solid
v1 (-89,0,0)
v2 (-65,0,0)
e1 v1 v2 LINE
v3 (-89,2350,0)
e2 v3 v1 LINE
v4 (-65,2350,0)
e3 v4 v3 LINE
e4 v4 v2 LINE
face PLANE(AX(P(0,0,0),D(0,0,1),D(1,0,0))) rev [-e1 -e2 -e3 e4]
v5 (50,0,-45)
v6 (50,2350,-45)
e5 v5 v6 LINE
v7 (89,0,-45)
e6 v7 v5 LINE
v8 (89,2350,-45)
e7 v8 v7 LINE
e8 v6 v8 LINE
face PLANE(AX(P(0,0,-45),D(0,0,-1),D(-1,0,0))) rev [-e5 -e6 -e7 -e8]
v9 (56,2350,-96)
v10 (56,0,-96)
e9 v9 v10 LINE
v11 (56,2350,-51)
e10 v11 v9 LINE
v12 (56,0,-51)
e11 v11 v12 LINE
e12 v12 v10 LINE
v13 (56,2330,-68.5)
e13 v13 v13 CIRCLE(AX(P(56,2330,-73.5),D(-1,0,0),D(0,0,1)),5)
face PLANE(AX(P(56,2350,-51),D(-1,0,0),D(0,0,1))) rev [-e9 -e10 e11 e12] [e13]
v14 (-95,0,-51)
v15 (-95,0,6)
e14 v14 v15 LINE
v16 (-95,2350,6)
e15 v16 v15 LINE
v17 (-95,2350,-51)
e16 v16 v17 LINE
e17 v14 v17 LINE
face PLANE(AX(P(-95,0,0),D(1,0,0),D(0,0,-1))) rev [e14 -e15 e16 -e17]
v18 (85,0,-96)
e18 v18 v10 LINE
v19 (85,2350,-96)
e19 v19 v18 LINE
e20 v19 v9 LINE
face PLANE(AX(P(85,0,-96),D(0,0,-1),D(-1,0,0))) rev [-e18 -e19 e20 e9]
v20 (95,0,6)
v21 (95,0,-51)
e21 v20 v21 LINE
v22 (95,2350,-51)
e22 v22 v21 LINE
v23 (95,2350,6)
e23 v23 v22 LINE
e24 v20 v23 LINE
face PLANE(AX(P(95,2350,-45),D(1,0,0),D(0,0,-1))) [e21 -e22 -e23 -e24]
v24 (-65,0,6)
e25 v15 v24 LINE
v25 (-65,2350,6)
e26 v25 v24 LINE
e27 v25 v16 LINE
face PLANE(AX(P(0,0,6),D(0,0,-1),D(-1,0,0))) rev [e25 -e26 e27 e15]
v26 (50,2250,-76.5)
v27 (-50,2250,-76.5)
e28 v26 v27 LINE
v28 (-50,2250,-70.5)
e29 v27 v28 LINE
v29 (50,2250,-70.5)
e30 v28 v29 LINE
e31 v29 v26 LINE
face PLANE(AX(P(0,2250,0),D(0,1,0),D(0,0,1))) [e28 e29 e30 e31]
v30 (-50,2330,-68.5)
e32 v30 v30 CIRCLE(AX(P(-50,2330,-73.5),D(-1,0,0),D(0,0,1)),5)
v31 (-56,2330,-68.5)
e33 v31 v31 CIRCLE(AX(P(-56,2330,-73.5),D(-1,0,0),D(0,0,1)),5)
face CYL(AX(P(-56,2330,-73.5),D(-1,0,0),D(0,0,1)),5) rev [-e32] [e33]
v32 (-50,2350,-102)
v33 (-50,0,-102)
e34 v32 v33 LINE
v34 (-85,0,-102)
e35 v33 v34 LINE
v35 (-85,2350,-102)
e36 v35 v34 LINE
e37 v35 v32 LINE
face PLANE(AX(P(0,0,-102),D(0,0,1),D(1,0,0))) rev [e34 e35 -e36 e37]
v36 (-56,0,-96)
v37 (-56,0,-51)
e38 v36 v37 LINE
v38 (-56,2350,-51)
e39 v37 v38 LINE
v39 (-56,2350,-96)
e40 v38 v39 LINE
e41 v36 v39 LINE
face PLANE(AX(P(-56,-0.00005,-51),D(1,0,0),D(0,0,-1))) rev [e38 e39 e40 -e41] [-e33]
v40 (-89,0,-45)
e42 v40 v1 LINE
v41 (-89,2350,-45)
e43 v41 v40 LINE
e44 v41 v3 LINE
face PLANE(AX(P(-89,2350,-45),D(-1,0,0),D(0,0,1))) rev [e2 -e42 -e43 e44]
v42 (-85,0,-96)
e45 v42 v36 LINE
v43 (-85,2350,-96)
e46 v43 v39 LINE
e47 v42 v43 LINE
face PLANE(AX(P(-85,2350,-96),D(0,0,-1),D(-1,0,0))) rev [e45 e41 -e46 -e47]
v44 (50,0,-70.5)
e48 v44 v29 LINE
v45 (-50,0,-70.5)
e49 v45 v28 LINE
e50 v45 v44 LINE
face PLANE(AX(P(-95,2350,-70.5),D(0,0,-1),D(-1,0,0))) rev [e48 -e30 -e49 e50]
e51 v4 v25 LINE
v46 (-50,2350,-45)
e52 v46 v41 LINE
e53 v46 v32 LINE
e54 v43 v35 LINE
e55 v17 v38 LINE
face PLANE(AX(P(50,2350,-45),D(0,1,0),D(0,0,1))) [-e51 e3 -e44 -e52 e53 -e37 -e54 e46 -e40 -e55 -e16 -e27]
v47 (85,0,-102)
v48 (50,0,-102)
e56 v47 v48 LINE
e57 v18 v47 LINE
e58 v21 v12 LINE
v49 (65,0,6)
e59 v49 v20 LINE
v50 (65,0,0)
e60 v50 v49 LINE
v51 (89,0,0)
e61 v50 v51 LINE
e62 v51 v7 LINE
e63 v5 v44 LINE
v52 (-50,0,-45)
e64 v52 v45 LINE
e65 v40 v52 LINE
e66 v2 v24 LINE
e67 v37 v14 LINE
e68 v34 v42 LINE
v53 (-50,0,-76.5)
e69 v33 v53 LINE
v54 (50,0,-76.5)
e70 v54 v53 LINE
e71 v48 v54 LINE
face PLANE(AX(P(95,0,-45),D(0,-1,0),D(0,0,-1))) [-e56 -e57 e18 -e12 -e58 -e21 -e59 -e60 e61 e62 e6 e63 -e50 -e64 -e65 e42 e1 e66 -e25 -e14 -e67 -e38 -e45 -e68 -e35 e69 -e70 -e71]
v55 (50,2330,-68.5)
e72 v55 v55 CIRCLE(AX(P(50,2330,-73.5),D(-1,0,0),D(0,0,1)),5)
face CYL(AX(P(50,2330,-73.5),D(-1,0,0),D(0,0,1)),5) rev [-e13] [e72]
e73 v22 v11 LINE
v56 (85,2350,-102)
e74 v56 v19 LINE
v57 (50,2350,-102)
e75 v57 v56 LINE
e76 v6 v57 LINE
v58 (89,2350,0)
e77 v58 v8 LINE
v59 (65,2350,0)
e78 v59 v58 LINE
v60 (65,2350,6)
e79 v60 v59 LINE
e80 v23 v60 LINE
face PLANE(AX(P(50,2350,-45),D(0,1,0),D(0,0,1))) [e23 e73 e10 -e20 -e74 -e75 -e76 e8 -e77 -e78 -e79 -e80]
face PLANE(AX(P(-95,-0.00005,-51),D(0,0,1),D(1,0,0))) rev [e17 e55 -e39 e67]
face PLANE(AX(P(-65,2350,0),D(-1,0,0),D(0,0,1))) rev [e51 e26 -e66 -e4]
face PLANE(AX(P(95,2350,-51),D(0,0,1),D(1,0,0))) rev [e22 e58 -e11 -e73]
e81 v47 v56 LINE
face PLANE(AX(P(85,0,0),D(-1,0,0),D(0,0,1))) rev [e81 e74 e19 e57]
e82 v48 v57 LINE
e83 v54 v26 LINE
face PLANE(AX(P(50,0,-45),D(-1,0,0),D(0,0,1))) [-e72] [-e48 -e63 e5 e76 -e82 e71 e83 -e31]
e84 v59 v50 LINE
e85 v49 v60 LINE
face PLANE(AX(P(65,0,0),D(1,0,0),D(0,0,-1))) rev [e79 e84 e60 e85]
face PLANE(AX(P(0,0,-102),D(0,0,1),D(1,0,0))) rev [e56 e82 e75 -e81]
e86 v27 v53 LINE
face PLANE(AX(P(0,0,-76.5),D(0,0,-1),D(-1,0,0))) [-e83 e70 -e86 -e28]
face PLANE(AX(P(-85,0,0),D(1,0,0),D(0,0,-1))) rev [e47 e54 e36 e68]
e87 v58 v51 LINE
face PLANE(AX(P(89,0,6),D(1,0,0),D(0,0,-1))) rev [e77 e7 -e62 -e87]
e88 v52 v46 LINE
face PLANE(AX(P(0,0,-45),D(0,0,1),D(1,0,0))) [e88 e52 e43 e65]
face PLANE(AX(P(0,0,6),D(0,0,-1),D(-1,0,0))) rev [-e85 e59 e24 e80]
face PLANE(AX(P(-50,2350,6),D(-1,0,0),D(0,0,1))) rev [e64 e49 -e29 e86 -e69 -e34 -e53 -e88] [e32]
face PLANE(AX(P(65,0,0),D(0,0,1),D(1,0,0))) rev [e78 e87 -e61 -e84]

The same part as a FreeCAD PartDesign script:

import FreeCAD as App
import Part
import Sketcher

V = App.Vector


def add_polygon(sketch, points):
    """Adds a closed chain of lines whose ends are joined by coincident constraints."""
    first, n = sketch.GeometryCount, len(points)
    for a, b in zip(points, points[1:] + points[:1]):
        sketch.addGeometry(Part.LineSegment(App.Vector(*a, 0), App.Vector(*b, 0)), False)
    for i in range(n):
        sketch.addConstraint(Sketcher.Constraint("Coincident", first + i, 2, first + (i + 1) % n, 1))

doc = App.newDocument("Part")
body = doc.addObject("PartDesign::Body", "Body")

sketch1 = doc.addObject("Sketcher::SketchObject", "Sketch")
body.addObject(sketch1)
sketch1.AttachmentSupport = (doc.XY_Plane, [""])
sketch1.MapMode = "FlatFace"
sketch1.AttachmentOffset = App.Placement(V(0, 0, -76.5), App.Rotation())
add_polygon(sketch1, [(95, 2350), (95, 0), (50, 0), (50, 2350)])
sketch1.addConstraint([
    Sketcher.Constraint("Vertical", 0),
    Sketcher.Constraint("Horizontal", 1),
    Sketcher.Constraint("Vertical", 2),
    Sketcher.Constraint("Horizontal", 3),
    Sketcher.Constraint("PointOnObject", 0, 2, -1),
    Sketcher.Constraint("DistanceX", 1, 2, 1, 1, 45.0),
    Sketcher.Constraint("DistanceY", 0, 2, 0, 1, 2350.0),
    Sketcher.Constraint("DistanceX", -1, 1, 0, 2, 95.0),
])
pad1 = doc.addObject("PartDesign::Pad", "Pad")
body.addObject(pad1)
pad1.Profile = sketch1
pad1.Length = 31.5

sketch2 = doc.addObject("Sketcher::SketchObject", "Sketch001")
body.addObject(sketch2)
sketch2.AttachmentSupport = (doc.YZ_Plane, [""])
sketch2.MapMode = "FlatFace"
sketch2.AttachmentOffset = App.Placement(V(0, 0, 50), App.Rotation())
add_polygon(sketch2, [(2350, -76), (0, -76), (0, -70), (2350, -70)])
sketch2.addConstraint([
    Sketcher.Constraint("Horizontal", 0),
    Sketcher.Constraint("Vertical", 1),
    Sketcher.Constraint("Horizontal", 2),
    Sketcher.Constraint("Vertical", 3),
    Sketcher.Constraint("PointOnObject", 0, 2, -2),
    Sketcher.Constraint("DistanceX", 0, 2, 0, 1, 2350.0),
    Sketcher.Constraint("DistanceY", 1, 1, 1, 2, 6.0),
    Sketcher.Constraint("DistanceY", 0, 2, -1, 1, 76.5),
])
pad2 = doc.addObject("PartDesign::Pad", "Pad001")
body.addObject(pad2)
pad2.Profile = sketch2
pad2.Length = 145
pad2.Reversed = True

sketch3 = doc.addObject("Sketcher::SketchObject", "Sketch002")
body.addObject(sketch3)
sketch3.AttachmentSupport = (doc.XY_Plane, [""])
sketch3.MapMode = "FlatFace"
sketch3.AttachmentOffset = App.Placement(V(0, 0, -70.5), App.Rotation())
add_polygon(sketch3, [(-95, 2350), (-95, 0), (-50, 0), (-50, 2350)])
sketch3.addConstraint([
    Sketcher.Constraint("Vertical", 0),
    Sketcher.Constraint("Horizontal", 1),
    Sketcher.Constraint("Vertical", 2),
    Sketcher.Constraint("Horizontal", 3),
    Sketcher.Constraint("PointOnObject", 0, 2, -1),
    Sketcher.Constraint("DistanceX", 1, 1, 1, 2, 45.0),
    Sketcher.Constraint("DistanceY", 0, 2, 0, 1, 2350.0),
    Sketcher.Constraint("DistanceX", 0, 2, -1, 1, 95.0),
])
pad3 = doc.addObject("PartDesign::Pad", "Pad002")
body.addObject(pad3)
pad3.Profile = sketch3
pad3.Length = 76.5

sketch4 = doc.addObject("Sketcher::SketchObject", "Sketch003")
body.addObject(sketch4)
sketch4.AttachmentSupport = (doc.XY_Plane, [""])
sketch4.MapMode = "FlatFace"
sketch4.AttachmentOffset = App.Placement(V(0, 0, -45), App.Rotation())
add_polygon(sketch4, [(89, 2350), (89, 0), (95, 0), (95, 2350)])
sketch4.addConstraint([
    Sketcher.Constraint("Vertical", 0),
    Sketcher.Constraint("Horizontal", 1),
    Sketcher.Constraint("Vertical", 2),
    Sketcher.Constraint("Horizontal", 3),
    Sketcher.Constraint("PointOnObject", 0, 2, -1),
    Sketcher.Constraint("DistanceX", 1, 1, 1, 2, 6.0),
    Sketcher.Constraint("DistanceY", 0, 2, 0, 1, 2350.0),
    Sketcher.Constraint("DistanceX", -1, 1, 0, 2, 89.0),
])
pad4 = doc.addObject("PartDesign::Pad", "Pad003")
body.addObject(pad4)
pad4.Profile = sketch4
pad4.Length = 51

sketch5 = doc.addObject("Sketcher::SketchObject", "Sketch004")
body.addObject(sketch5)
sketch5.AttachmentSupport = (doc.YZ_Plane, [""])
sketch5.MapMode = "FlatFace"
sketch5.AttachmentOffset = App.Placement(V(0, 0, 89), App.Rotation())
add_polygon(sketch5, [(2350, 0), (0, 0), (0, 6), (2350, 6)])
sketch5.addConstraint([
    Sketcher.Constraint("Horizontal", 0),
    Sketcher.Constraint("Vertical", 1),
    Sketcher.Constraint("Horizontal", 2),
    Sketcher.Constraint("Vertical", 3),
    Sketcher.Constraint("Coincident", 0, 2, -1, 1),
    Sketcher.Constraint("DistanceX", 0, 2, 0, 1, 2350.0),
    Sketcher.Constraint("DistanceY", 1, 1, 1, 2, 6.0),
])
pad5 = doc.addObject("PartDesign::Pad", "Pad004")
body.addObject(pad5)
pad5.Profile = sketch5
pad5.Length = 24
pad5.Reversed = True

sketch6 = doc.addObject("Sketcher::SketchObject", "Sketch005")
body.addObject(sketch6)
sketch6.AttachmentSupport = (doc.XY_Plane, [""])
sketch6.MapMode = "FlatFace"
sketch6.AttachmentOffset = App.Placement(V(0, 0, 6), App.Rotation())
add_polygon(sketch6, [(-65, 2350), (-65, 0), (-50, 0), (-50, 2350)])
sketch6.addConstraint([
    Sketcher.Constraint("Vertical", 0),
    Sketcher.Constraint("Horizontal", 1),
    Sketcher.Constraint("Vertical", 2),
    Sketcher.Constraint("Horizontal", 3),
    Sketcher.Constraint("PointOnObject", 0, 2, -1),
    Sketcher.Constraint("DistanceX", 1, 1, 1, 2, 15.0),
    Sketcher.Constraint("DistanceY", 0, 2, 0, 1, 2350.0),
    Sketcher.Constraint("DistanceX", 0, 2, -1, 1, 65.0),
])
pocket1 = doc.addObject("PartDesign::Pocket", "Pocket")
body.addObject(pocket1)
pocket1.Profile = sketch6
pocket1.Length = 6

sketch7 = doc.addObject("Sketcher::SketchObject", "Sketch006")
body.addObject(sketch7)
sketch7.AttachmentSupport = (doc.XY_Plane, [""])
sketch7.MapMode = "FlatFace"
add_polygon(sketch7, [(-89, 2350), (-89, 0), (-50, 0), (-50, 2350)])
sketch7.addConstraint([
    Sketcher.Constraint("Vertical", 0),
    Sketcher.Constraint("Horizontal", 1),
    Sketcher.Constraint("Vertical", 2),
    Sketcher.Constraint("Horizontal", 3),
    Sketcher.Constraint("PointOnObject", 0, 2, -1),
    Sketcher.Constraint("DistanceX", 1, 1, 1, 2, 39.0),
    Sketcher.Constraint("DistanceY", 0, 2, 0, 1, 2350.0),
    Sketcher.Constraint("DistanceX", 0, 2, -1, 1, 89.0),
])
pocket2 = doc.addObject("PartDesign::Pocket", "Pocket001")
body.addObject(pocket2)
pocket2.Profile = sketch7
pocket2.Length = 45

sketch8 = doc.addObject("Sketcher::SketchObject", "Sketch007")
body.addObject(sketch8)
sketch8.AttachmentSupport = (doc.XZ_Plane, [""])
sketch8.MapMode = "FlatFace"
sketch8.AttachmentOffset = App.Placement(V(0, 0, -2350), App.Rotation())
add_polygon(sketch8, [(50, -70), (50, -76), (-50, -76), (-50, -70)])
sketch8.addConstraint([
    Sketcher.Constraint("Vertical", 0),
    Sketcher.Constraint("Horizontal", 1),
    Sketcher.Constraint("Vertical", 2),
    Sketcher.Constraint("Horizontal", 3),
    Sketcher.Constraint("DistanceX", 1, 2, 1, 1, 100.0),
    Sketcher.Constraint("DistanceY", 0, 2, 0, 1, 6.0),
    Sketcher.Constraint("DistanceX", -1, 1, 0, 2, 50.0),
    Sketcher.Constraint("DistanceY", 0, 2, -1, 1, 76.5),
])
pocket3 = doc.addObject("PartDesign::Pocket", "Pocket002")
body.addObject(pocket3)
pocket3.Profile = sketch8
pocket3.Length = 100
pocket3.Reversed = True

sketch9 = doc.addObject("Sketcher::SketchObject", "Sketch008")
body.addObject(sketch9)
sketch9.AttachmentSupport = (doc.XY_Plane, [""])
sketch9.MapMode = "FlatFace"
sketch9.AttachmentOffset = App.Placement(V(0, 0, -76.5), App.Rotation())
add_polygon(sketch9, [(95, 2350), (95, 0), (50, 0), (50, 2350)])
sketch9.addConstraint([
    Sketcher.Constraint("Vertical", 0),
    Sketcher.Constraint("Horizontal", 1),
    Sketcher.Constraint("Vertical", 2),
    Sketcher.Constraint("Horizontal", 3),
    Sketcher.Constraint("PointOnObject", 0, 2, -1),
    Sketcher.Constraint("DistanceX", 1, 2, 1, 1, 45.0),
    Sketcher.Constraint("DistanceY", 0, 2, 0, 1, 2350.0),
    Sketcher.Constraint("DistanceX", -1, 1, 0, 2, 95.0),
])
pad6 = doc.addObject("PartDesign::Pad", "Pad005")
body.addObject(pad6)
pad6.Profile = sketch9
pad6.Length = 25.5
pad6.Reversed = True

sketch10 = doc.addObject("Sketcher::SketchObject", "Sketch009")
body.addObject(sketch10)
sketch10.AttachmentSupport = (doc.XZ_Plane, [""])
sketch10.MapMode = "FlatFace"
add_polygon(sketch10, [(56, -51), (56, -102), (95, -102), (95, -51)])
sketch10.addConstraint([
    Sketcher.Constraint("Vertical", 0),
    Sketcher.Constraint("Horizontal", 1),
    Sketcher.Constraint("Vertical", 2),
    Sketcher.Constraint("Horizontal", 3),
    Sketcher.Constraint("DistanceX", 1, 1, 1, 2, 39.0),
    Sketcher.Constraint("DistanceY", 0, 2, 0, 1, 51.0),
    Sketcher.Constraint("DistanceX", -1, 1, 0, 2, 56.0),
    Sketcher.Constraint("DistanceY", 0, 2, -1, 1, 102.0),
])
pocket4 = doc.addObject("PartDesign::Pocket", "Pocket003")
body.addObject(pocket4)
pocket4.Profile = sketch10
pocket4.Type = "ThroughAll"

sketch11 = doc.addObject("Sketcher::SketchObject", "Sketch010")
body.addObject(sketch11)
sketch11.AttachmentSupport = (doc.YZ_Plane, [""])
sketch11.MapMode = "FlatFace"
sketch11.AttachmentOffset = App.Placement(V(0, 0, 56), App.Rotation())
add_polygon(sketch11, [(2350, -96), (0, -96), (0, -102), (2350, -102)])
sketch11.addConstraint([
    Sketcher.Constraint("Horizontal", 0),
    Sketcher.Constraint("Vertical", 1),
    Sketcher.Constraint("Horizontal", 2),
    Sketcher.Constraint("Vertical", 3),
    Sketcher.Constraint("PointOnObject", 0, 2, -2),
    Sketcher.Constraint("DistanceX", 0, 2, 0, 1, 2350.0),
    Sketcher.Constraint("DistanceY", 1, 2, 1, 1, 6.0),
    Sketcher.Constraint("DistanceY", 0, 2, -1, 1, 96.0),
])
pad7 = doc.addObject("PartDesign::Pad", "Pad006")
body.addObject(pad7)
pad7.Profile = sketch11
pad7.Length = 29

sketch12 = doc.addObject("Sketcher::SketchObject", "Sketch011")
body.addObject(sketch12)
sketch12.AttachmentSupport = (doc.XY_Plane, [""])
sketch12.MapMode = "FlatFace"
sketch12.AttachmentOffset = App.Placement(V(0, 0, -76.5), App.Rotation())
add_polygon(sketch12, [(-50, 2350), (-50, 0), (-95, 0), (-95, 2350)])
sketch12.addConstraint([
    Sketcher.Constraint("Vertical", 0),
    Sketcher.Constraint("Horizontal", 1),
    Sketcher.Constraint("Vertical", 2),
    Sketcher.Constraint("Horizontal", 3),
    Sketcher.Constraint("PointOnObject", 0, 2, -1),
    Sketcher.Constraint("DistanceX", 1, 2, 1, 1, 45.0),
    Sketcher.Constraint("DistanceY", 0, 2, 0, 1, 2350.0),
    Sketcher.Constraint("DistanceX", 0, 2, -1, 1, 50.0),
])
pad8 = doc.addObject("PartDesign::Pad", "Pad007")
body.addObject(pad8)
pad8.Profile = sketch12
pad8.Length = 25.5
pad8.Reversed = True

sketch13 = doc.addObject("Sketcher::SketchObject", "Sketch012")
body.addObject(sketch13)
sketch13.AttachmentSupport = (doc.XZ_Plane, [""])
sketch13.MapMode = "FlatFace"
sketch13.AttachmentOffset = App.Placement(V(0, 0, -2350), App.Rotation())
add_polygon(sketch13, [(-56, -51), (-56, -102), (-95, -102), (-95, -51)])
sketch13.addConstraint([
    Sketcher.Constraint("Vertical", 0),
    Sketcher.Constraint("Horizontal", 1),
    Sketcher.Constraint("Vertical", 2),
    Sketcher.Constraint("Horizontal", 3),
    Sketcher.Constraint("DistanceX", 1, 2, 1, 1, 39.0),
    Sketcher.Constraint("DistanceY", 0, 2, 0, 1, 51.0),
    Sketcher.Constraint("DistanceX", 0, 2, -1, 1, 56.0),
    Sketcher.Constraint("DistanceY", 0, 2, -1, 1, 102.0),
])
pocket5 = doc.addObject("PartDesign::Pocket", "Pocket004")
body.addObject(pocket5)
pocket5.Profile = sketch13
pocket5.Type = "ThroughAll"
pocket5.Reversed = True

sketch14 = doc.addObject("Sketcher::SketchObject", "Sketch013")
body.addObject(sketch14)
sketch14.AttachmentSupport = (doc.YZ_Plane, [""])
sketch14.MapMode = "FlatFace"
sketch14.AttachmentOffset = App.Placement(V(0, 0, -56), App.Rotation())
add_polygon(sketch14, [(2350, -102), (0, -102), (0, -96), (2350, -96)])
sketch14.addConstraint([
    Sketcher.Constraint("Horizontal", 0),
    Sketcher.Constraint("Vertical", 1),
    Sketcher.Constraint("Horizontal", 2),
    Sketcher.Constraint("Vertical", 3),
    Sketcher.Constraint("PointOnObject", 0, 2, -2),
    Sketcher.Constraint("DistanceX", 0, 2, 0, 1, 2350.0),
    Sketcher.Constraint("DistanceY", 1, 1, 1, 2, 6.0),
    Sketcher.Constraint("DistanceY", 0, 2, -1, 1, 102.0),
])
pad9 = doc.addObject("PartDesign::Pad", "Pad008")
body.addObject(pad9)
pad9.Profile = sketch14
pad9.Length = 29
pad9.Reversed = True

sketch15 = doc.addObject("Sketcher::SketchObject", "Sketch014")
body.addObject(sketch15)
sketch15.AttachmentSupport = (doc.YZ_Plane, [""])
sketch15.MapMode = "FlatFace"
sketch15.AttachmentOffset = App.Placement(V(0, 0, -56), App.Rotation())
sketch15.addGeometry(Part.Circle(V(2330, -74, 0), V(0, 0, 1), 5), False)
sketch15.addConstraint([
    Sketcher.Constraint("Diameter", 0, 10.0),
    Sketcher.Constraint("DistanceX", -1, 1, 0, 3, 2330.0),
    Sketcher.Constraint("DistanceY", 0, 3, -1, 1, 73.5),
])
doc.recompute()
hole = doc.addObject("PartDesign::Hole", "Hole")
body.addObject(hole)
hole.Profile = sketch15
hole.ThreadType = "None"
hole.Diameter = 10
hole.DepthType = "Dimension"
hole.Depth = 6
hole.DrillPoint = "Flat"
hole.Reversed = True

sketch16 = doc.addObject("Sketcher::SketchObject", "Sketch015")
body.addObject(sketch16)
sketch16.AttachmentSupport = (doc.YZ_Plane, [""])
sketch16.MapMode = "FlatFace"
sketch16.AttachmentOffset = App.Placement(V(0, 0, 50), App.Rotation())
sketch16.addGeometry(Part.Circle(V(2330, -74, 0), V(0, 0, 1), 5), False)
sketch16.addConstraint([
    Sketcher.Constraint("Diameter", 0, 10.0),
    Sketcher.Constraint("DistanceX", -1, 1, 0, 3, 2330.0),
    Sketcher.Constraint("DistanceY", 0, 3, -1, 1, 73.5),
])
doc.recompute()
hole2 = doc.addObject("PartDesign::Hole", "Hole001")
body.addObject(hole2)
hole2.Profile = sketch16
hole2.ThreadType = "None"
hole2.Diameter = 10
hole2.DepthType = "Dimension"
hole2.Depth = 45
hole2.DrillPoint = "Flat"
hole2.Reversed = True

doc.recompute()
